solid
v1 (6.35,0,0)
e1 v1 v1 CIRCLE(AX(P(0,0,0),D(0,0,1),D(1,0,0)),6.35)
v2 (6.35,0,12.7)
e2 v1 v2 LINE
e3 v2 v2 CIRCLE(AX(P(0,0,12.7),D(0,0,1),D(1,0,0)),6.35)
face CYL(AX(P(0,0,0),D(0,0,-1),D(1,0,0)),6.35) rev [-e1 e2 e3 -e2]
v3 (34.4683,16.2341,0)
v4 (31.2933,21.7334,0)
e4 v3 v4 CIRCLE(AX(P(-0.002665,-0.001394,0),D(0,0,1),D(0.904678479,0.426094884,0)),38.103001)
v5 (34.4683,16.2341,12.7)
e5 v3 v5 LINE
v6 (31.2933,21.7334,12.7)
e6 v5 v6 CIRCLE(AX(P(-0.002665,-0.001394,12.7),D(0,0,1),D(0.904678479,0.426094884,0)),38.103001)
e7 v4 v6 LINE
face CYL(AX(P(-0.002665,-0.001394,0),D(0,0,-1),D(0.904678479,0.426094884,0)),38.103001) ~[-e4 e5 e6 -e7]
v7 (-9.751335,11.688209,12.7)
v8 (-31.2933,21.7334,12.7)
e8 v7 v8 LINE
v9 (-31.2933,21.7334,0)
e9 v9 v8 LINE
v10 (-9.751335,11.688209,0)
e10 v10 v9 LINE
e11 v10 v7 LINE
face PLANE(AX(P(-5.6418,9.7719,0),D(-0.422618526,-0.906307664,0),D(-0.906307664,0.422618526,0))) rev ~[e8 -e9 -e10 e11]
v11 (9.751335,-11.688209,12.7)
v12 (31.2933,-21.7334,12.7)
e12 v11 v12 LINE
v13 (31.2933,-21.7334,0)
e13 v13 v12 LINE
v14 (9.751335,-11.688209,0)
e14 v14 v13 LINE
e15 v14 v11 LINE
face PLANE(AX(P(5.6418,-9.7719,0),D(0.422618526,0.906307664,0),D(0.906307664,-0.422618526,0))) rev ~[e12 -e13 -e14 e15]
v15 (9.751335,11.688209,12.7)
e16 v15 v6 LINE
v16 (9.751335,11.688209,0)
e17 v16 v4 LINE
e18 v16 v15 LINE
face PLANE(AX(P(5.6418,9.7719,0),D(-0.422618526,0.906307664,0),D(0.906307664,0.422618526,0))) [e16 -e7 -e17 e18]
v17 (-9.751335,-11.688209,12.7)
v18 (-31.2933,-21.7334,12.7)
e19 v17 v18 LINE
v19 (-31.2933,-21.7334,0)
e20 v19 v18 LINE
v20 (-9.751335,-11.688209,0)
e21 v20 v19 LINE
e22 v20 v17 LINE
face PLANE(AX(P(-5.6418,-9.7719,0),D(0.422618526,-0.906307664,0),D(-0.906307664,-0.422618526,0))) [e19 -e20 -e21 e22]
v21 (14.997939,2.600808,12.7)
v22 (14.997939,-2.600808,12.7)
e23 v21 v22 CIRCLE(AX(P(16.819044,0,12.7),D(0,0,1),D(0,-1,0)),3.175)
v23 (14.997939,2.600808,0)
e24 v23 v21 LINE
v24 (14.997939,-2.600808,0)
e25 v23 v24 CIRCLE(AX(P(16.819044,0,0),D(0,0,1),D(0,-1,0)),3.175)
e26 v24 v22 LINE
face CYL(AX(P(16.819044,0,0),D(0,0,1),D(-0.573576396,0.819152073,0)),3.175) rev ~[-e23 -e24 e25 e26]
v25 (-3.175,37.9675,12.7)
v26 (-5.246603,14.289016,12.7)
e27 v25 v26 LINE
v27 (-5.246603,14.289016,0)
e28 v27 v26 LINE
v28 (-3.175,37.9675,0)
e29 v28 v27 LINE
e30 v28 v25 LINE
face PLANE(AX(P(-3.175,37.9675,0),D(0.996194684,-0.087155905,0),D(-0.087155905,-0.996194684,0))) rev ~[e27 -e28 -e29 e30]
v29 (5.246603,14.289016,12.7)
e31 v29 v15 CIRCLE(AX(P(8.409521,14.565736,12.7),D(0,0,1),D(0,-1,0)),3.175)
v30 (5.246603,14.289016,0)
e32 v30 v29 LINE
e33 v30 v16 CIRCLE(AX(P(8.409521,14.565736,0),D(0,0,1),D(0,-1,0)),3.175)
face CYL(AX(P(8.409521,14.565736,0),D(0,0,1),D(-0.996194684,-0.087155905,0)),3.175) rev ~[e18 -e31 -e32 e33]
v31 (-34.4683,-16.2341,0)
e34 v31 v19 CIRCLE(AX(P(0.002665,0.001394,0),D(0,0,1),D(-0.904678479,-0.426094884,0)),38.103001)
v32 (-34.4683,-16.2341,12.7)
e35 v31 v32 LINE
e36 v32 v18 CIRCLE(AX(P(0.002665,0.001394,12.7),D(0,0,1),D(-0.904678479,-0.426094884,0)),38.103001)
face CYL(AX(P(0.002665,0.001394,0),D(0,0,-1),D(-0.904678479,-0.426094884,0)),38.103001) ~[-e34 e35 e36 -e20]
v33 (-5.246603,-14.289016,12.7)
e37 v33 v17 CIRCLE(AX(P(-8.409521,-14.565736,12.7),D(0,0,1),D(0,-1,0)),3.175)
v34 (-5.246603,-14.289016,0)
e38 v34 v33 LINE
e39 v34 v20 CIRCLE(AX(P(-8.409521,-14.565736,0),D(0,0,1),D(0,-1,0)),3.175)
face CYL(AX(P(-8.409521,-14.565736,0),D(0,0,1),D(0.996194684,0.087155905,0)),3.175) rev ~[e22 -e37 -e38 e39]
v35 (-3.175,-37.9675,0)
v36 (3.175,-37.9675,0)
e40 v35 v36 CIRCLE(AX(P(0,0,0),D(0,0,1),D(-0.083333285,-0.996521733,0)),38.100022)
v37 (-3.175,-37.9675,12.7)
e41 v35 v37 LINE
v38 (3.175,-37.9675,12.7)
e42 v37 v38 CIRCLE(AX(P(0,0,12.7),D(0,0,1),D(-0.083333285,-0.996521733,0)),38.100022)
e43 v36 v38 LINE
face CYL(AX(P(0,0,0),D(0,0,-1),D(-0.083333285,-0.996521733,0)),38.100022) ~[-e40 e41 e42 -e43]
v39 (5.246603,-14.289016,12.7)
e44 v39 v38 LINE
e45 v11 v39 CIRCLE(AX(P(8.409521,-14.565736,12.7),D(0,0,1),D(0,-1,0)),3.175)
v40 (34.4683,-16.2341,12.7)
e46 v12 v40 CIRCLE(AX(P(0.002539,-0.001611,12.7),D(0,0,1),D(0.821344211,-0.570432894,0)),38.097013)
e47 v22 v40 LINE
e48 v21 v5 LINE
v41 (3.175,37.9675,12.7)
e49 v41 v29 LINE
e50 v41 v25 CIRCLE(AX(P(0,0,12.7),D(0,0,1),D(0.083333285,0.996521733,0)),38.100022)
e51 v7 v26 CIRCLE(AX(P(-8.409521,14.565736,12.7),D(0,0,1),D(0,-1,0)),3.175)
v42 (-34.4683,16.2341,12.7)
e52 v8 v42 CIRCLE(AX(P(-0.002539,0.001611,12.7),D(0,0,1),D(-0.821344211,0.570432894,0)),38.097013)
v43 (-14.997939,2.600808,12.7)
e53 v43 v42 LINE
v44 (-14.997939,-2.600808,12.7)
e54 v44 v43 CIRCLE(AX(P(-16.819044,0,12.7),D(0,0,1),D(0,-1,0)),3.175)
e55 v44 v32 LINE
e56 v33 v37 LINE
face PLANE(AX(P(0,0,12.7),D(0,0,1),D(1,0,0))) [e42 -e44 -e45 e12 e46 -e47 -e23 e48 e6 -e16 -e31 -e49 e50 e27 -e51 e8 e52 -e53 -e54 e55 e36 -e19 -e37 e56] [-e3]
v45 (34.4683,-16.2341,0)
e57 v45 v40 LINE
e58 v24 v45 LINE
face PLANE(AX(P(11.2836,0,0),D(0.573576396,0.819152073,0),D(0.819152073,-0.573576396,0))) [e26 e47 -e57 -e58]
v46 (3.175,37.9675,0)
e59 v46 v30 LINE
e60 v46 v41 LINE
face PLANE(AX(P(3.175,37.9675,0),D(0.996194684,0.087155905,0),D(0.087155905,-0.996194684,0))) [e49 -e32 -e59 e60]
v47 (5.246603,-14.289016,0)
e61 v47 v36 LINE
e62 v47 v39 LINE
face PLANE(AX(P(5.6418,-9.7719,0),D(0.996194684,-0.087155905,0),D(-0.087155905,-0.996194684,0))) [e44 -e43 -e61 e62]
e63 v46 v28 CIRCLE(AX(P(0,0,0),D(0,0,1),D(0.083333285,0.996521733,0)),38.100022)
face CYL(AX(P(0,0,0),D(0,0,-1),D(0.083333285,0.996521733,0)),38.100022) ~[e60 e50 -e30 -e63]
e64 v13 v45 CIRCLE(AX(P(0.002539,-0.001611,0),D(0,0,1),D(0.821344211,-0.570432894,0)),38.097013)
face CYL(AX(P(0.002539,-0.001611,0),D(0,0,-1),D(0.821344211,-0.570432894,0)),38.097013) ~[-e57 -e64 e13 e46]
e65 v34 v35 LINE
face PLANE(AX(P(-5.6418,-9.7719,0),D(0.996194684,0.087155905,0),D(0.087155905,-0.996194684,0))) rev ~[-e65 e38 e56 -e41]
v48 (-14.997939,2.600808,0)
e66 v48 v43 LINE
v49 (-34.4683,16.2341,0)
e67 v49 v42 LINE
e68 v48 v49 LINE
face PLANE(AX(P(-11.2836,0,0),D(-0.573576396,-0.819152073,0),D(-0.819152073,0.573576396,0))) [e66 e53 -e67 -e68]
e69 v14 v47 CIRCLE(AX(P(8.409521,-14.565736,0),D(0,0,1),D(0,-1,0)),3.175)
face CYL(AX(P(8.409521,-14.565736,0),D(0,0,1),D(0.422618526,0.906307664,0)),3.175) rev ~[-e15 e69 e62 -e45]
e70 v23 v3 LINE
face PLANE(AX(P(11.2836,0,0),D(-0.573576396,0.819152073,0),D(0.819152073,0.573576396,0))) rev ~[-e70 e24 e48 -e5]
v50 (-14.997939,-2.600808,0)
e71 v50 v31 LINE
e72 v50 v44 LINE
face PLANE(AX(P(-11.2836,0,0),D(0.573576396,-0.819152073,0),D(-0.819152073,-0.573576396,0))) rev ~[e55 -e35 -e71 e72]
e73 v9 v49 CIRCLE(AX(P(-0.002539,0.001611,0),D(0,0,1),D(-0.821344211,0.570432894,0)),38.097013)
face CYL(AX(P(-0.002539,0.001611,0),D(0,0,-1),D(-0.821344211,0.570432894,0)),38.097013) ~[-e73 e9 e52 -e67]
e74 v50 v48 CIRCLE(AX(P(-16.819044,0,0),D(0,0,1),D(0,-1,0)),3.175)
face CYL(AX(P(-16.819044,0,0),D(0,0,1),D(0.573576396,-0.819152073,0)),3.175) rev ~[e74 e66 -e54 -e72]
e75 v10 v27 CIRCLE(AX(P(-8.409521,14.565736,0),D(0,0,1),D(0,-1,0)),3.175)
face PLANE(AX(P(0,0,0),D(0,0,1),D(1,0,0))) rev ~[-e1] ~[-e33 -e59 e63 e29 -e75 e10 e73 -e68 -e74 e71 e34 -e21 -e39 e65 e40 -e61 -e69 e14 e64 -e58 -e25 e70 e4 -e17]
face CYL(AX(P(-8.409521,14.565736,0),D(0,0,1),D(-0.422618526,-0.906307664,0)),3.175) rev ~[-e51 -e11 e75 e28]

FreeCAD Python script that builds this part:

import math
import FreeCAD as App
import Part
import Sketcher
from FreeCAD import Vector
Q = App.Units.Quantity


def edges_at(feature, points):
    """Names of the edges that pass closest to the given points."""
    edges = feature.Shape.Edges
    near = lambda p: min(range(len(edges)), key=lambda i: edges[i].distToShape(Part.Vertex(*p))[0])
    return sorted({f"Edge{near(p) + 1}" for p in points})

doc = App.newDocument("Part")
params = doc.addObject("Spreadsheet::Sheet", "Params")
for row, (alias, value) in enumerate([
    ("sketch1_diameter", "0.5 in"),
    ("sketch1_radius", "1.5 in"),
    ("pad1_length", "0.5 in"),
    ("fillet_radius", "0.125 in"),
], start=1):
    params.set(f"A{row}", alias)
    params.set(f"B{row}", "=" + value)
    params.setAlias(f"B{row}", alias)

body = doc.addObject("PartDesign::Body", "Body")

# Sketch on XY plane
sketch1 = doc.addObject("Sketcher::SketchObject", "Sketch")
body.addObject(sketch1)
sketch1.AttachmentSupport = (doc.XY_Plane, [""])
sketch1.MapMode = "FlatFace"
sketch1.addGeometry(Part.LineSegment(Vector(5.6418, 9.7719, 0), Vector(3.175, 37.9675, 0)), False)
sketch1.addGeometry(Part.ArcOfCircle(Part.Circle(Vector(0, 0, 0), Vector(0, 0, 1), 38.100022), math.radians(85.219811), math.radians(94.780189)), False)
sketch1.addGeometry(Part.LineSegment(Vector(-3.175, 37.9675, 0), Vector(-5.6418, 9.7719, 0)), False)
sketch1.addGeometry(Part.LineSegment(Vector(-5.6418, 9.7719, 0), Vector(-31.2933, 21.7334, 0)), False)
sketch1.addGeometry(Part.ArcOfCircle(Part.Circle(Vector(-0.002539, 0.001611, 0), Vector(0, 0, 1), 38.097013), math.radians(145.219582), math.radians(154.780767)), False)
sketch1.addGeometry(Part.LineSegment(Vector(-34.4683, 16.2341, 0), Vector(-11.2836, 0, 0)), False)
sketch1.addGeometry(Part.LineSegment(Vector(-11.2836, 0, 0), Vector(-34.4683, -16.2341, 0)), False)
sketch1.addGeometry(Part.ArcOfCircle(Part.Circle(Vector(0.002665, 0.001394, 0), Vector(0, 0, 1), 38.103001), math.radians(-154.780014), math.radians(-145.220335)), False)
sketch1.addGeometry(Part.LineSegment(Vector(-31.2933, -21.7334, 0), Vector(-5.6418, -9.7719, 0)), False)
sketch1.addGeometry(Part.LineSegment(Vector(-5.6418, -9.7719, 0), Vector(-3.175, -37.9675, 0)), False)
sketch1.addGeometry(Part.ArcOfCircle(Part.Circle(Vector(0, 0, 0), Vector(0, 0, 1), 38.100022), math.radians(-94.780189), math.radians(-85.219811)), False)
sketch1.addGeometry(Part.LineSegment(Vector(3.175, -37.9675, 0), Vector(5.6418, -9.7719, 0)), False)
sketch1.addGeometry(Part.LineSegment(Vector(5.6418, -9.7719, 0), Vector(31.2933, -21.7334, 0)), False)
sketch1.addGeometry(Part.ArcOfCircle(Part.Circle(Vector(0.002539, -0.001611, 0), Vector(0, 0, 1), 38.097013), math.radians(-34.780418), math.radians(-25.219233)), False)
sketch1.addGeometry(Part.LineSegment(Vector(34.4683, -16.2341, 0), Vector(11.2836, 0, 0)), False)
sketch1.addGeometry(Part.LineSegment(Vector(11.2836, 0, 0), Vector(34.4683, 16.2341, 0)), False)
sketch1.addGeometry(Part.ArcOfCircle(Part.Circle(Vector(-0.002665, -0.001394, 0), Vector(0, 0, 1), 38.103001), math.radians(25.219986), math.radians(34.779665)), False)
sketch1.addGeometry(Part.LineSegment(Vector(31.2933, 21.7334, 0), Vector(5.6418, 9.7719, 0)), False)
sketch1.addGeometry(Part.Circle(Vector(0, 0, 0), Vector(0, 0, 1), 6.35), False)
sketch1.addConstraint(Sketcher.Constraint("Coincident", 0, 2, 1, 1))
sketch1.addConstraint(Sketcher.Constraint("Coincident", 1, 2, 2, 1))
sketch1.addConstraint(Sketcher.Constraint("Coincident", 2, 2, 3, 1))
sketch1.addConstraint(Sketcher.Constraint("Coincident", 3, 2, 4, 1))
sketch1.addConstraint(Sketcher.Constraint("Coincident", 4, 2, 5, 1))
sketch1.addConstraint(Sketcher.Constraint("Coincident", 5, 2, 6, 1))
sketch1.addConstraint(Sketcher.Constraint("Coincident", 6, 2, 7, 1))
sketch1.addConstraint(Sketcher.Constraint("Coincident", 7, 2, 8, 1))
sketch1.addConstraint(Sketcher.Constraint("Coincident", 8, 2, 9, 1))
sketch1.addConstraint(Sketcher.Constraint("Coincident", 9, 2, 10, 1))
sketch1.addConstraint(Sketcher.Constraint("Coincident", 10, 2, 11, 1))
sketch1.addConstraint(Sketcher.Constraint("Coincident", 11, 2, 12, 1))
sketch1.addConstraint(Sketcher.Constraint("Coincident", 12, 2, 13, 1))
sketch1.addConstraint(Sketcher.Constraint("Coincident", 13, 2, 14, 1))
sketch1.addConstraint(Sketcher.Constraint("Coincident", 14, 2, 15, 1))
sketch1.addConstraint(Sketcher.Constraint("Coincident", 15, 2, 16, 1))
sketch1.addConstraint(Sketcher.Constraint("Coincident", 16, 2, 17, 1))
sketch1.addConstraint(Sketcher.Constraint("Coincident", 17, 2, 0, 1))
sketch1.addConstraint(Sketcher.Constraint("Coincident", 1, 3, -1, 1))
sketch1.addConstraint(Sketcher.Constraint("Coincident", 10, 3, -1, 1))
sketch1.addConstraint(Sketcher.Constraint("Coincident", 18, 3, -1, 1))
sketch1.addConstraint(Sketcher.Constraint("Equal", 1, 10))
sketch1.addConstraint(Sketcher.Constraint("Equal", 4, 13))
sketch1.addConstraint(Sketcher.Constraint("Equal", 7, 16))
sketch1.addConstraint(Sketcher.Constraint("Symmetric", 4, 3, 13, 3, -1, 1))
sketch1.addConstraint(Sketcher.Constraint("Symmetric", 7, 3, 16, 3, -1, 1))
sketch1.addConstraint(Sketcher.Constraint("Symmetric", 2, 2, 11, 2, -1, 1))
sketch1.addConstraint(Sketcher.Constraint("Symmetric", 5, 2, 14, 2, -1, 1))
sketch1.addConstraint(Sketcher.Constraint("Symmetric", 8, 2, 17, 2, -1, 1))
sketch1.addConstraint(Sketcher.Constraint("Symmetric", 4, 3, 7, 3, -2))
sketch1.addConstraint(Sketcher.Constraint("Symmetric", 8, 2, 11, 2, -2))
sketch1.addConstraint(Sketcher.Constraint("Symmetric", 7, 2, 12, 2, -2))
sketch1.addConstraint(Sketcher.Constraint("Symmetric", 6, 2, 13, 2, -2))
sketch1.addConstraint(Sketcher.Constraint("PointOnObject", 5, 2, -1))
sketch1.addConstraint(Sketcher.Constraint("Parallel", 0, 9))
sketch1.addConstraint(Sketcher.Constraint("Parallel", 2, 11))
sketch1.addConstraint(Sketcher.Constraint("Parallel", 3, 12))
sketch1.addConstraint(Sketcher.Constraint("Parallel", 5, 14))
sketch1.addConstraint(Sketcher.Constraint("Parallel", 6, 15))
sketch1.addConstraint(Sketcher.Constraint("Parallel", 8, 17))
sketch1.addConstraint(Sketcher.Constraint("Horizontal", 0, 2, 1, 2))
sketch1.addConstraint(Sketcher.Constraint("Equal", 2, 3))
sketch1.addConstraint(Sketcher.Constraint("Equal", 3, 5))
sketch1.addConstraint(Sketcher.Constraint("Diameter", 18, Q("0.5 in")))
sketch1.addConstraint(Sketcher.Constraint("Radius", 1, Q("1.5 in")))
sketch1.addConstraint(Sketcher.Constraint("DistanceX", 1, 2, 0, 2, Q("0.25 in")))
sketch1.addConstraint(Sketcher.Constraint("Angle", 0, Q("95 deg")))
sketch1.addConstraint(Sketcher.Constraint("Angle", 3, Q("155 deg")))
sketch1.addConstraint(Sketcher.Constraint("Angle", 5, Q("-35 deg")))
sketch1.addConstraint(Sketcher.Constraint("DistanceX", 4, 2, 3, 2, Q("0.125 in")))
sketch1.addConstraint(Sketcher.Constraint("Radius", 4, Q("38.097 mm")))
sketch1.setExpression("Constraints[43]", "Params.sketch1_diameter")
sketch1.setExpression("Constraints[44]", "Params.sketch1_radius")
pad1 = doc.addObject("PartDesign::Pad", "Pad")
body.addObject(pad1)
pad1.Profile = sketch1
pad1.setExpression("Length", "Params.pad1_length")
doc.recompute()

fillet = doc.addObject("PartDesign::Fillet", "Fillet")
body.addObject(fillet)
fillet.Base = (pad1, edges_at(pad1, [
    (5.642, 9.772, 6.35),
    (-5.642, 9.772, 6.35),
    (-11.284, 0, 6.35),
    (-5.642, -9.772, 6.35),
    (5.642, -9.772, 6.35),
    (11.284, 0, 6.35),
]))
fillet.setExpression("Radius", "Params.fillet_radius")

doc.recompute()
